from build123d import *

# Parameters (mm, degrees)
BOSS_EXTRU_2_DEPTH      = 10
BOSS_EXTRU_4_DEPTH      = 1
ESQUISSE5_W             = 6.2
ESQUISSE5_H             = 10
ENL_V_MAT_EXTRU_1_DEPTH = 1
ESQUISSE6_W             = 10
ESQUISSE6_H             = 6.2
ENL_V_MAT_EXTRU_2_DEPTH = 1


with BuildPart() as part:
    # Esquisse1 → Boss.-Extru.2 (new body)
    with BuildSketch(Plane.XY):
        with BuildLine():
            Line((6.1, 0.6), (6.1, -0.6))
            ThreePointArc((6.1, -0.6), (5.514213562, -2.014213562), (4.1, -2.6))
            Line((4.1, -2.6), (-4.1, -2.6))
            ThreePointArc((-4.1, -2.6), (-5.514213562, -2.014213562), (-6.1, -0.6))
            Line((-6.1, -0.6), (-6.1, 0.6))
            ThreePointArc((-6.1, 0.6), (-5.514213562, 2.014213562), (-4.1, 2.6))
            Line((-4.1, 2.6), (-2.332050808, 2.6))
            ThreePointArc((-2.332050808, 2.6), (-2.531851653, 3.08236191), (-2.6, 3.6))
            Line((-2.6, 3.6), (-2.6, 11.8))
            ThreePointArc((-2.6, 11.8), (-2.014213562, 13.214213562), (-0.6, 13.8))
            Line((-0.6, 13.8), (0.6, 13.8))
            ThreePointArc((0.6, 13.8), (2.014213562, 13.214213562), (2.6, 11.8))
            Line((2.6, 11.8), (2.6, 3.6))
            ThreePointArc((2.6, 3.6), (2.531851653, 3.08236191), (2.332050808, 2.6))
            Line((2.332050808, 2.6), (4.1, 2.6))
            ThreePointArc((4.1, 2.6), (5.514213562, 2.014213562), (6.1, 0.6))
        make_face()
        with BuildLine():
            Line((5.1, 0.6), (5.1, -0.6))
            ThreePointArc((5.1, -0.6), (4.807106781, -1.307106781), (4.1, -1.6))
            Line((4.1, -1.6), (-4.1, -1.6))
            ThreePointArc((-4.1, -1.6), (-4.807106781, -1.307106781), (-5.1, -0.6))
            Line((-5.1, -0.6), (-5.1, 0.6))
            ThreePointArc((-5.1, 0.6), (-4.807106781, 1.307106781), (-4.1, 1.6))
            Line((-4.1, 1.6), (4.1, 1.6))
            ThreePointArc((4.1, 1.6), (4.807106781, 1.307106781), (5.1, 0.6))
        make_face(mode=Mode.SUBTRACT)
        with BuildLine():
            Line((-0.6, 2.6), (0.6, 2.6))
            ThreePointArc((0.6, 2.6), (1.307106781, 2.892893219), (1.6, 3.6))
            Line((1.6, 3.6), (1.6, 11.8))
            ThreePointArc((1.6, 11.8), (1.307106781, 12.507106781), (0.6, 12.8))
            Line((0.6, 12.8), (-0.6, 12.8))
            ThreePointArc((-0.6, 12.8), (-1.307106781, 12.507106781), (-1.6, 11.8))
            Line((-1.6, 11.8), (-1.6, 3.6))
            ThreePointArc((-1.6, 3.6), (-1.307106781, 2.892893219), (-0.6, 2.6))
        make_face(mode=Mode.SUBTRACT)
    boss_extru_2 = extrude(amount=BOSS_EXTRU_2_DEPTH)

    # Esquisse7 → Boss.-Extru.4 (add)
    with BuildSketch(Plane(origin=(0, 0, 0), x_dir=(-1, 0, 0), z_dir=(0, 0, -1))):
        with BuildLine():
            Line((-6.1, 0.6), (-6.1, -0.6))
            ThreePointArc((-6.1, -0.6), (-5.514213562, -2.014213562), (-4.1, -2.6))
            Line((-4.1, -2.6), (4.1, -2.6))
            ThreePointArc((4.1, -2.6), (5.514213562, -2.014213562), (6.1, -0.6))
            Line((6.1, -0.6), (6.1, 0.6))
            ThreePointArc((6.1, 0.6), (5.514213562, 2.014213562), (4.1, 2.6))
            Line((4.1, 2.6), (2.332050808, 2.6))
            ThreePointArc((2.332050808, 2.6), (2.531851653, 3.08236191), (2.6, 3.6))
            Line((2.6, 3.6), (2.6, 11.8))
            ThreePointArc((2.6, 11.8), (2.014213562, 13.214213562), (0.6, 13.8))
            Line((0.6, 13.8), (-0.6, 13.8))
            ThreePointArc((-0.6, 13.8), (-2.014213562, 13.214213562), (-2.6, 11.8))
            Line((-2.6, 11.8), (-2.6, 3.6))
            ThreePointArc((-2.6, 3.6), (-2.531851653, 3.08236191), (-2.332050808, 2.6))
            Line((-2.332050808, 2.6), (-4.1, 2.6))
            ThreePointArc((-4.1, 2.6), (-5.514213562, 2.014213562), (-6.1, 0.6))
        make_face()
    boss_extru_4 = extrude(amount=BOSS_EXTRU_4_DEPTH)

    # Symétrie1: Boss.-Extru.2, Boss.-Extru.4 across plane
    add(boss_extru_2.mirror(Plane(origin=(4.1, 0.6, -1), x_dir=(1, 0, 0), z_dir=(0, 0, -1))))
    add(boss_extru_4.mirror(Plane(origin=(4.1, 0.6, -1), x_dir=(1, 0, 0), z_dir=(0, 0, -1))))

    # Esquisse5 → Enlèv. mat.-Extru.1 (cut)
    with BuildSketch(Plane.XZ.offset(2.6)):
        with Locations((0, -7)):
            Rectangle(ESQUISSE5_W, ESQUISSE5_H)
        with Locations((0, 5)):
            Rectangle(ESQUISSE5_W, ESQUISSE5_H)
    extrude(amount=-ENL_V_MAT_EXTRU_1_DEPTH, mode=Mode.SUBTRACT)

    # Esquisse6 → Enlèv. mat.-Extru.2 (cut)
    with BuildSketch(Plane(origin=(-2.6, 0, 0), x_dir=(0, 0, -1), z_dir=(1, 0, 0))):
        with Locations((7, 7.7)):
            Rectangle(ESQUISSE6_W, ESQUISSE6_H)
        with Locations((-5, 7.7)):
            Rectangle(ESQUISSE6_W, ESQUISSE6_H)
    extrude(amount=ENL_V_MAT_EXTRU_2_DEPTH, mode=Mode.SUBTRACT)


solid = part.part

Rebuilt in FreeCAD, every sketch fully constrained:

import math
import FreeCAD as App
import Part
import Sketcher

V = App.Vector
Q = App.Units.Quantity

doc = App.newDocument("Part")
body = doc.addObject("PartDesign::Body", "Body")

sketch1 = body.newObject("Sketcher::SketchObject", "Sketch")
sketch1.AttachmentSupport = (doc.getObject("XY_Plane"), [""])
sketch1.MapMode = "FlatFace"
sketch1.addGeometry([
    Part.LineSegment(V(6.1, -0.6, 0), V(6.1, 0.6, 0)),
    Part.ArcOfCircle(Part.Circle(V(4.1, 0.6, 0), V(0, 0, 1), 2), math.radians(0), math.radians(90)),
    Part.LineSegment(V(4.1, 2.6, 0), V(2.3, 2.6, 0)),
    Part.ArcOfCircle(Part.Circle(V(0.6, 3.6, 0), V(0, 0, 1), 2), math.radians(-30), math.radians(0)),
    Part.LineSegment(V(2.6, 3.6, 0), V(2.6, 11.8, 0)),
    Part.ArcOfCircle(Part.Circle(V(0.6, 11.8, 0), V(0, 0, 1), 2), math.radians(0), math.radians(90)),
    Part.LineSegment(V(0.6, 13.8, 0), V(-0.6, 13.8, 0)),
    Part.ArcOfCircle(Part.Circle(V(-0.6, 11.8, 0), V(0, 0, 1), 2), math.radians(90), math.radians(180)),
    Part.LineSegment(V(-2.6, 11.8, 0), V(-2.6, 3.6, 0)),
    Part.ArcOfCircle(Part.Circle(V(-0.6, 3.6, 0), V(0, 0, 1), 2), math.radians(180), math.radians(210)),
    Part.LineSegment(V(-2.3, 2.6, 0), V(-4.1, 2.6, 0)),
    Part.ArcOfCircle(Part.Circle(V(-4.1, 0.6, 0), V(0, 0, 1), 2), math.radians(90), math.radians(180)),
    Part.LineSegment(V(-6.1, 0.6, 0), V(-6.1, -0.6, 0)),
    Part.ArcOfCircle(Part.Circle(V(-4.1, -0.6, 0), V(0, 0, 1), 2), math.radians(-180), math.radians(-90)),
    Part.LineSegment(V(-4.1, -2.6, 0), V(4.1, -2.6, 0)),
    Part.ArcOfCircle(Part.Circle(V(4.1, -0.6, 0), V(0, 0, 1), 2), math.radians(-90), math.radians(0)),
    Part.LineSegment(V(5.1, 0.6, 0), V(5.1, -0.6, 0)),
    Part.ArcOfCircle(Part.Circle(V(4.1, -0.6, 0), V(0, 0, 1), 1), math.radians(-90), math.radians(0)),
    Part.LineSegment(V(4.1, -1.6, 0), V(-4.1, -1.6, 0)),
    Part.ArcOfCircle(Part.Circle(V(-4.1, -0.6, 0), V(0, 0, 1), 1), math.radians(-180), math.radians(-90)),
    Part.LineSegment(V(-5.1, -0.6, 0), V(-5.1, 0.6, 0)),
    Part.ArcOfCircle(Part.Circle(V(-4.1, 0.6, 0), V(0, 0, 1), 1), math.radians(90), math.radians(180)),
    Part.LineSegment(V(-4.1, 1.6, 0), V(4.1, 1.6, 0)),
    Part.ArcOfCircle(Part.Circle(V(4.1, 0.6, 0), V(0, 0, 1), 1), math.radians(0), math.radians(90)),
    Part.ArcOfCircle(Part.Circle(V(-0.6, 3.6, 0), V(0, 0, 1), 1), math.radians(-180), math.radians(-90)),
    Part.LineSegment(V(-1.6, 3.6, 0), V(-1.6, 11.8, 0)),
    Part.ArcOfCircle(Part.Circle(V(-0.6, 11.8, 0), V(0, 0, 1), 1), math.radians(90), math.radians(180)),
    Part.LineSegment(V(-0.6, 12.8, 0), V(0.6, 12.8, 0)),
    Part.ArcOfCircle(Part.Circle(V(0.6, 11.8, 0), V(0, 0, 1), 1), math.radians(0), math.radians(90)),
    Part.LineSegment(V(1.6, 11.8, 0), V(1.6, 3.6, 0)),
    Part.ArcOfCircle(Part.Circle(V(0.6, 3.6, 0), V(0, 0, 1), 1), math.radians(-90), math.radians(0)),
    Part.LineSegment(V(0.6, 2.6, 0), V(-0.6, 2.6, 0)),
], False)
sketch1.addConstraint([
    Sketcher.Constraint("Tangent", 0, 2, 1, 1),
    Sketcher.Constraint("Tangent", 1, 2, 2, 1),
    Sketcher.Constraint("Coincident", 2, 2, 3, 1),
    Sketcher.Constraint("Tangent", 3, 2, 4, 1),
    Sketcher.Constraint("Tangent", 4, 2, 5, 1),
    Sketcher.Constraint("Tangent", 5, 2, 6, 1),
    Sketcher.Constraint("Tangent", 6, 2, 7, 1),
    Sketcher.Constraint("Tangent", 7, 2, 8, 1),
    Sketcher.Constraint("Tangent", 8, 2, 9, 1),
    Sketcher.Constraint("Coincident", 9, 2, 10, 1),
    Sketcher.Constraint("Tangent", 10, 2, 11, 1),
    Sketcher.Constraint("Tangent", 11, 2, 12, 1),
    Sketcher.Constraint("Tangent", 12, 2, 13, 1),
    Sketcher.Constraint("Tangent", 13, 2, 14, 1),
    Sketcher.Constraint("Tangent", 14, 2, 15, 1),
    Sketcher.Constraint("Tangent", 15, 2, 0, 1),
    Sketcher.Constraint("Tangent", 16, 2, 17, 2),
    Sketcher.Constraint("Tangent", 17, 1, 18, 1),
    Sketcher.Constraint("Tangent", 18, 2, 19, 2),
    Sketcher.Constraint("Tangent", 19, 1, 20, 1),
    Sketcher.Constraint("Tangent", 20, 2, 21, 2),
    Sketcher.Constraint("Tangent", 21, 1, 22, 1),
    Sketcher.Constraint("Tangent", 22, 2, 23, 2),
    Sketcher.Constraint("Tangent", 23, 1, 16, 1),
    Sketcher.Constraint("Tangent", 24, 1, 25, 1),
    Sketcher.Constraint("Tangent", 25, 2, 26, 2),
    Sketcher.Constraint("Tangent", 26, 1, 27, 1),
    Sketcher.Constraint("Tangent", 27, 2, 28, 2),
    Sketcher.Constraint("Tangent", 28, 1, 29, 1),
    Sketcher.Constraint("Tangent", 29, 2, 30, 2),
    Sketcher.Constraint("Tangent", 30, 1, 31, 1),
    Sketcher.Constraint("Tangent", 31, 2, 24, 2),
    Sketcher.Constraint("Vertical", 0),
    Sketcher.Constraint("Horizontal", 2),
    Sketcher.Constraint("Vertical", 4),
    Sketcher.Constraint("Horizontal", 6),
    Sketcher.Constraint("Vertical", 8),
    Sketcher.Constraint("Horizontal", 10),
    Sketcher.Constraint("Vertical", 12),
    Sketcher.Constraint("Horizontal", 14),
    Sketcher.Constraint("Vertical", 16),
    Sketcher.Constraint("Horizontal", 18),
    Sketcher.Constraint("Vertical", 20),
    Sketcher.Constraint("Horizontal", 22),
    Sketcher.Constraint("Vertical", 25),
    Sketcher.Constraint("Horizontal", 27),
    Sketcher.Constraint("Vertical", 29),
    Sketcher.Constraint("Horizontal", 31),
    Sketcher.Constraint("Coincident", 17, 3, 15, 3),
    Sketcher.Constraint("Coincident", 19, 3, 13, 3),
    Sketcher.Constraint("Coincident", 21, 3, 11, 3),
    Sketcher.Constraint("Coincident", 23, 3, 1, 3),
    Sketcher.Constraint("Coincident", 24, 3, 9, 3),
    Sketcher.Constraint("Coincident", 26, 3, 7, 3),
    Sketcher.Constraint("Coincident", 28, 3, 5, 3),
    Sketcher.Constraint("Coincident", 30, 3, 3, 3),
    Sketcher.Constraint("Equal", 1, 3),
    Sketcher.Constraint("Equal", 3, 5),
    Sketcher.Constraint("Equal", 5, 7),
    Sketcher.Constraint("Equal", 7, 9),
    Sketcher.Constraint("Equal", 9, 11),
    Sketcher.Constraint("Equal", 11, 13),
    Sketcher.Constraint("Equal", 13, 15),
    Sketcher.Constraint("Equal", 23, 24),
    Sketcher.Constraint("Symmetric", 1, 3, 13, 3, -1, 1),
    Sketcher.Constraint("Horizontal", 10, 2, 30, 1),
    Sketcher.Constraint("Equal", 2, 10),
    Sketcher.Constraint("Equal", 31, 0),
    Sketcher.Constraint("Equal", 22, 4),
    Sketcher.Constraint("Radius", 1, Q("2 mm")),
    Sketcher.Constraint("Radius", 17, Q("1 mm")),
    Sketcher.Constraint("DistanceX", 6, 2, 6, 1, Q("1.2 mm")),
    Sketcher.Constraint("DistanceX", 14, 1, 14, 2, Q("8.2 mm")),
])
pad1 = body.newObject("PartDesign::Pad", "Pad")
pad1.Profile = sketch1
pad1.Length = 10

sketch2 = body.newObject("Sketcher::SketchObject", "Sketch001")
sketch2.AttachmentSupport = (doc.getObject("XY_Plane"), [""])
sketch2.MapMode = "FlatFace"
sketch2.addGeometry([
    Part.LineSegment(V(6.1, 0.6, 0), V(6.1, -0.6, 0)),
    Part.ArcOfCircle(Part.Circle(V(4.1, -0.6, 0), V(0, 0, 1), 2), math.radians(-90), math.radians(0)),
    Part.LineSegment(V(4.1, -2.6, 0), V(-4.1, -2.6, 0)),
    Part.ArcOfCircle(Part.Circle(V(-4.1, -0.6, 0), V(0, 0, 1), 2), math.radians(-180), math.radians(-90)),
    Part.LineSegment(V(-6.1, -0.6, 0), V(-6.1, 0.6, 0)),
    Part.ArcOfCircle(Part.Circle(V(-4.1, 0.6, 0), V(0, 0, 1), 2), math.radians(90), math.radians(180)),
    Part.LineSegment(V(-4.1, 2.6, 0), V(-2.3, 2.6, 0)),
    Part.ArcOfCircle(Part.Circle(V(-0.6, 3.6, 0), V(0, 0, 1), 2), math.radians(180), math.radians(210)),
    Part.LineSegment(V(-2.6, 3.6, 0), V(-2.6, 11.8, 0)),
    Part.ArcOfCircle(Part.Circle(V(-0.6, 11.8, 0), V(0, 0, 1), 2), math.radians(90), math.radians(180)),
    Part.LineSegment(V(-0.6, 13.8, 0), V(0.6, 13.8, 0)),
    Part.ArcOfCircle(Part.Circle(V(0.6, 11.8, 0), V(0, 0, 1), 2), math.radians(0), math.radians(90)),
    Part.LineSegment(V(2.6, 11.8, 0), V(2.6, 3.6, 0)),
    Part.ArcOfCircle(Part.Circle(V(0.6, 3.6, 0), V(0, 0, 1), 2), math.radians(-30), math.radians(0)),
    Part.LineSegment(V(2.3, 2.6, 0), V(4.1, 2.6, 0)),
    Part.ArcOfCircle(Part.Circle(V(4.1, 0.6, 0), V(0, 0, 1), 2), math.radians(0), math.radians(90)),
], False)
sketch2.addConstraint([
    Sketcher.Constraint("Tangent", 0, 2, 1, 2),
    Sketcher.Constraint("Tangent", 1, 1, 2, 1),
    Sketcher.Constraint("Tangent", 2, 2, 3, 2),
    Sketcher.Constraint("Tangent", 3, 1, 4, 1),
    Sketcher.Constraint("Tangent", 4, 2, 5, 2),
    Sketcher.Constraint("Tangent", 5, 1, 6, 1),
    Sketcher.Constraint("Coincident", 6, 2, 7, 2),
    Sketcher.Constraint("Tangent", 7, 1, 8, 1),
    Sketcher.Constraint("Tangent", 8, 2, 9, 2),
    Sketcher.Constraint("Tangent", 9, 1, 10, 1),
    Sketcher.Constraint("Tangent", 10, 2, 11, 2),
    Sketcher.Constraint("Tangent", 11, 1, 12, 1),
    Sketcher.Constraint("Tangent", 12, 2, 13, 2),
    Sketcher.Constraint("Coincident", 13, 1, 14, 1),
    Sketcher.Constraint("Tangent", 14, 2, 15, 2),
    Sketcher.Constraint("Tangent", 15, 1, 0, 1),
    Sketcher.Constraint("Vertical", 0),
    Sketcher.Constraint("Horizontal", 2),
    Sketcher.Constraint("Vertical", 4),
    Sketcher.Constraint("Horizontal", 6),
    Sketcher.Constraint("Vertical", 8),
    Sketcher.Constraint("Horizontal", 10),
    Sketcher.Constraint("Vertical", 12),
    Sketcher.Constraint("Horizontal", 14),
    Sketcher.Constraint("Equal", 1, 3),
    Sketcher.Constraint("Equal", 3, 5),
    Sketcher.Constraint("Equal", 5, 7),
    Sketcher.Constraint("Equal", 7, 9),
    Sketcher.Constraint("Equal", 9, 11),
    Sketcher.Constraint("Equal", 11, 13),
    Sketcher.Constraint("Equal", 13, 15),
    Sketcher.Constraint("Symmetric", 1, 3, 5, 3, -1, 1),
    Sketcher.Constraint("Symmetric", 7, 3, 13, 3, -2),
    Sketcher.Constraint("Horizontal", 5, 3, 15, 3),
    Sketcher.Constraint("Equal", 10, 0),
    Sketcher.Constraint("Equal", 2, 8),
    Sketcher.Constraint("Radius", 1, Q("2 mm")),
    Sketcher.Constraint("DistanceX", 2, 2, 2, 1, Q("8.2 mm")),
    Sketcher.Constraint("DistanceX", 10, 1, 10, 2, Q("1.2 mm")),
    Sketcher.Constraint("DistanceY", 5, 3, 7, 3, Q("3 mm")),
])
pad2 = body.newObject("PartDesign::Pad", "Pad001")
pad2.Profile = sketch2
pad2.Length = 1
pad2.Reversed = True
doc.recompute()

datumplane = body.newObject("PartDesign::Plane", "DatumPlane")
datumplane.AttachmentSupport = (doc.getObject("XY_Plane"), [""])
datumplane.MapMode = "FlatFace"
datumplane.AttachmentOffset = App.Placement(V(0, 0, -1), App.Rotation())
mirrored = body.newObject("PartDesign::Mirrored", "Mirrored")
mirrored.Originals = [pad1, pad2]
mirrored.MirrorPlane = (datumplane, [""])
body.Tip = mirrored

sketch3 = body.newObject("Sketcher::SketchObject", "Sketch002")
sketch3.AttachmentSupport = (doc.getObject("XZ_Plane"), [""])
sketch3.MapMode = "FlatFace"
sketch3.AttachmentOffset = App.Placement(V(0, 0, 2.6), App.Rotation())
sketch3.addGeometry([
    Part.LineSegment(V(-3, -2, 0), V(-3, -12, 0)),
    Part.LineSegment(V(-3, -12, 0), V(3, -12, 0)),
    Part.LineSegment(V(3, -12, 0), V(3, -2, 0)),
    Part.LineSegment(V(3, -2, 0), V(-3, -2, 0)),
    Part.LineSegment(V(-3, 10, 0), V(-3, 0, 0)),
    Part.LineSegment(V(-3, 0, 0), V(3, 0, 0)),
    Part.LineSegment(V(3, 0, 0), V(3, 10, 0)),
    Part.LineSegment(V(3, 10, 0), V(-3, 10, 0)),
], False)
sketch3.addConstraint([
    Sketcher.Constraint("Coincident", 0, 2, 1, 1),
    Sketcher.Constraint("Coincident", 1, 2, 2, 1),
    Sketcher.Constraint("Coincident", 2, 2, 3, 1),
    Sketcher.Constraint("Coincident", 3, 2, 0, 1),
    Sketcher.Constraint("Coincident", 4, 2, 5, 1),
    Sketcher.Constraint("Coincident", 5, 2, 6, 1),
    Sketcher.Constraint("Coincident", 6, 2, 7, 1),
    Sketcher.Constraint("Coincident", 7, 2, 4, 1),
    Sketcher.Constraint("Vertical", 0),
    Sketcher.Constraint("Horizontal", 1),
    Sketcher.Constraint("Vertical", 2),
    Sketcher.Constraint("Horizontal", 3),
    Sketcher.Constraint("Vertical", 4),
    Sketcher.Constraint("Horizontal", 5),
    Sketcher.Constraint("Vertical", 6),
    Sketcher.Constraint("Horizontal", 7),
    Sketcher.Constraint("Symmetric", 4, 2, 5, 2, -1, 1),
    Sketcher.Constraint("Vertical", 3, 2, 4, 2),
    Sketcher.Constraint("Vertical", 2, 2, 5, 2),
    Sketcher.Constraint("Equal", 2, 4),
    Sketcher.Constraint("DistanceY", 0, 2, 0, 1, Q("10 mm")),
    Sketcher.Constraint("DistanceX", 1, 1, 1, 2, Q("6.2 mm")),
    Sketcher.Constraint("DistanceY", 0, 2, -1, 1, Q("12 mm")),
])
pocket1 = body.newObject("PartDesign::Pocket", "Pocket")
pocket1.Profile = sketch3
pocket1.Length = 1

sketch4 = body.newObject("Sketcher::SketchObject", "Sketch003")
sketch4.AttachmentSupport = (doc.getObject("YZ_Plane"), [""])
sketch4.MapMode = "FlatFace"
sketch4.AttachmentOffset = App.Placement(V(0, 0, -2.6), App.Rotation())
sketch4.addGeometry([
    Part.LineSegment(V(11, -2, 0), V(5, -2, 0)),
    Part.LineSegment(V(5, -2, 0), V(5, -12, 0)),
    Part.LineSegment(V(5, -12, 0), V(11, -12, 0)),
    Part.LineSegment(V(11, -12, 0), V(11, -2, 0)),
    Part.LineSegment(V(11, 10, 0), V(5, 10, 0)),
    Part.LineSegment(V(5, 10, 0), V(5, 0, 0)),
    Part.LineSegment(V(5, 0, 0), V(11, 0, 0)),
    Part.LineSegment(V(11, 0, 0), V(11, 10, 0)),
], False)
sketch4.addConstraint([
    Sketcher.Constraint("Coincident", 0, 2, 1, 1),
    Sketcher.Constraint("Coincident", 1, 2, 2, 1),
    Sketcher.Constraint("Coincident", 2, 2, 3, 1),
    Sketcher.Constraint("Coincident", 3, 2, 0, 1),
    Sketcher.Constraint("Coincident", 4, 2, 5, 1),
    Sketcher.Constraint("Coincident", 5, 2, 6, 1),
    Sketcher.Constraint("Coincident", 6, 2, 7, 1),
    Sketcher.Constraint("Coincident", 7, 2, 4, 1),
    Sketcher.Constraint("Horizontal", 0),
    Sketcher.Constraint("Vertical", 1),
    Sketcher.Constraint("Horizontal", 2),
    Sketcher.Constraint("Vertical", 3),
    Sketcher.Constraint("Horizontal", 4),
    Sketcher.Constraint("Vertical", 5),
    Sketcher.Constraint("Horizontal", 6),
    Sketcher.Constraint("Vertical", 7),
    Sketcher.Constraint("PointOnObject", 5, 2, -1),
    Sketcher.Constraint("Vertical", 1, 2, 4, 2),
    Sketcher.Constraint("Vertical", 3, 2, 6, 2),
    Sketcher.Constraint("Equal", 3, 5),
    Sketcher.Constraint("DistanceY", 1, 2, 1, 1, Q("10 mm")),
    Sketcher.Constraint("DistanceX", 0, 2, 0, 1, Q("6.2 mm")),
    Sketcher.Constraint("DistanceY", 0, 2, -1, 1, Q("2 mm")),
    Sketcher.Constraint("DistanceX", -1, 1, 0, 2, Q("4.6 mm")),
])
pocket2 = body.newObject("PartDesign::Pocket", "Pocket001")
pocket2.Profile = sketch4
pocket2.Length = 1
pocket2.Reversed = True

doc.recompute()
